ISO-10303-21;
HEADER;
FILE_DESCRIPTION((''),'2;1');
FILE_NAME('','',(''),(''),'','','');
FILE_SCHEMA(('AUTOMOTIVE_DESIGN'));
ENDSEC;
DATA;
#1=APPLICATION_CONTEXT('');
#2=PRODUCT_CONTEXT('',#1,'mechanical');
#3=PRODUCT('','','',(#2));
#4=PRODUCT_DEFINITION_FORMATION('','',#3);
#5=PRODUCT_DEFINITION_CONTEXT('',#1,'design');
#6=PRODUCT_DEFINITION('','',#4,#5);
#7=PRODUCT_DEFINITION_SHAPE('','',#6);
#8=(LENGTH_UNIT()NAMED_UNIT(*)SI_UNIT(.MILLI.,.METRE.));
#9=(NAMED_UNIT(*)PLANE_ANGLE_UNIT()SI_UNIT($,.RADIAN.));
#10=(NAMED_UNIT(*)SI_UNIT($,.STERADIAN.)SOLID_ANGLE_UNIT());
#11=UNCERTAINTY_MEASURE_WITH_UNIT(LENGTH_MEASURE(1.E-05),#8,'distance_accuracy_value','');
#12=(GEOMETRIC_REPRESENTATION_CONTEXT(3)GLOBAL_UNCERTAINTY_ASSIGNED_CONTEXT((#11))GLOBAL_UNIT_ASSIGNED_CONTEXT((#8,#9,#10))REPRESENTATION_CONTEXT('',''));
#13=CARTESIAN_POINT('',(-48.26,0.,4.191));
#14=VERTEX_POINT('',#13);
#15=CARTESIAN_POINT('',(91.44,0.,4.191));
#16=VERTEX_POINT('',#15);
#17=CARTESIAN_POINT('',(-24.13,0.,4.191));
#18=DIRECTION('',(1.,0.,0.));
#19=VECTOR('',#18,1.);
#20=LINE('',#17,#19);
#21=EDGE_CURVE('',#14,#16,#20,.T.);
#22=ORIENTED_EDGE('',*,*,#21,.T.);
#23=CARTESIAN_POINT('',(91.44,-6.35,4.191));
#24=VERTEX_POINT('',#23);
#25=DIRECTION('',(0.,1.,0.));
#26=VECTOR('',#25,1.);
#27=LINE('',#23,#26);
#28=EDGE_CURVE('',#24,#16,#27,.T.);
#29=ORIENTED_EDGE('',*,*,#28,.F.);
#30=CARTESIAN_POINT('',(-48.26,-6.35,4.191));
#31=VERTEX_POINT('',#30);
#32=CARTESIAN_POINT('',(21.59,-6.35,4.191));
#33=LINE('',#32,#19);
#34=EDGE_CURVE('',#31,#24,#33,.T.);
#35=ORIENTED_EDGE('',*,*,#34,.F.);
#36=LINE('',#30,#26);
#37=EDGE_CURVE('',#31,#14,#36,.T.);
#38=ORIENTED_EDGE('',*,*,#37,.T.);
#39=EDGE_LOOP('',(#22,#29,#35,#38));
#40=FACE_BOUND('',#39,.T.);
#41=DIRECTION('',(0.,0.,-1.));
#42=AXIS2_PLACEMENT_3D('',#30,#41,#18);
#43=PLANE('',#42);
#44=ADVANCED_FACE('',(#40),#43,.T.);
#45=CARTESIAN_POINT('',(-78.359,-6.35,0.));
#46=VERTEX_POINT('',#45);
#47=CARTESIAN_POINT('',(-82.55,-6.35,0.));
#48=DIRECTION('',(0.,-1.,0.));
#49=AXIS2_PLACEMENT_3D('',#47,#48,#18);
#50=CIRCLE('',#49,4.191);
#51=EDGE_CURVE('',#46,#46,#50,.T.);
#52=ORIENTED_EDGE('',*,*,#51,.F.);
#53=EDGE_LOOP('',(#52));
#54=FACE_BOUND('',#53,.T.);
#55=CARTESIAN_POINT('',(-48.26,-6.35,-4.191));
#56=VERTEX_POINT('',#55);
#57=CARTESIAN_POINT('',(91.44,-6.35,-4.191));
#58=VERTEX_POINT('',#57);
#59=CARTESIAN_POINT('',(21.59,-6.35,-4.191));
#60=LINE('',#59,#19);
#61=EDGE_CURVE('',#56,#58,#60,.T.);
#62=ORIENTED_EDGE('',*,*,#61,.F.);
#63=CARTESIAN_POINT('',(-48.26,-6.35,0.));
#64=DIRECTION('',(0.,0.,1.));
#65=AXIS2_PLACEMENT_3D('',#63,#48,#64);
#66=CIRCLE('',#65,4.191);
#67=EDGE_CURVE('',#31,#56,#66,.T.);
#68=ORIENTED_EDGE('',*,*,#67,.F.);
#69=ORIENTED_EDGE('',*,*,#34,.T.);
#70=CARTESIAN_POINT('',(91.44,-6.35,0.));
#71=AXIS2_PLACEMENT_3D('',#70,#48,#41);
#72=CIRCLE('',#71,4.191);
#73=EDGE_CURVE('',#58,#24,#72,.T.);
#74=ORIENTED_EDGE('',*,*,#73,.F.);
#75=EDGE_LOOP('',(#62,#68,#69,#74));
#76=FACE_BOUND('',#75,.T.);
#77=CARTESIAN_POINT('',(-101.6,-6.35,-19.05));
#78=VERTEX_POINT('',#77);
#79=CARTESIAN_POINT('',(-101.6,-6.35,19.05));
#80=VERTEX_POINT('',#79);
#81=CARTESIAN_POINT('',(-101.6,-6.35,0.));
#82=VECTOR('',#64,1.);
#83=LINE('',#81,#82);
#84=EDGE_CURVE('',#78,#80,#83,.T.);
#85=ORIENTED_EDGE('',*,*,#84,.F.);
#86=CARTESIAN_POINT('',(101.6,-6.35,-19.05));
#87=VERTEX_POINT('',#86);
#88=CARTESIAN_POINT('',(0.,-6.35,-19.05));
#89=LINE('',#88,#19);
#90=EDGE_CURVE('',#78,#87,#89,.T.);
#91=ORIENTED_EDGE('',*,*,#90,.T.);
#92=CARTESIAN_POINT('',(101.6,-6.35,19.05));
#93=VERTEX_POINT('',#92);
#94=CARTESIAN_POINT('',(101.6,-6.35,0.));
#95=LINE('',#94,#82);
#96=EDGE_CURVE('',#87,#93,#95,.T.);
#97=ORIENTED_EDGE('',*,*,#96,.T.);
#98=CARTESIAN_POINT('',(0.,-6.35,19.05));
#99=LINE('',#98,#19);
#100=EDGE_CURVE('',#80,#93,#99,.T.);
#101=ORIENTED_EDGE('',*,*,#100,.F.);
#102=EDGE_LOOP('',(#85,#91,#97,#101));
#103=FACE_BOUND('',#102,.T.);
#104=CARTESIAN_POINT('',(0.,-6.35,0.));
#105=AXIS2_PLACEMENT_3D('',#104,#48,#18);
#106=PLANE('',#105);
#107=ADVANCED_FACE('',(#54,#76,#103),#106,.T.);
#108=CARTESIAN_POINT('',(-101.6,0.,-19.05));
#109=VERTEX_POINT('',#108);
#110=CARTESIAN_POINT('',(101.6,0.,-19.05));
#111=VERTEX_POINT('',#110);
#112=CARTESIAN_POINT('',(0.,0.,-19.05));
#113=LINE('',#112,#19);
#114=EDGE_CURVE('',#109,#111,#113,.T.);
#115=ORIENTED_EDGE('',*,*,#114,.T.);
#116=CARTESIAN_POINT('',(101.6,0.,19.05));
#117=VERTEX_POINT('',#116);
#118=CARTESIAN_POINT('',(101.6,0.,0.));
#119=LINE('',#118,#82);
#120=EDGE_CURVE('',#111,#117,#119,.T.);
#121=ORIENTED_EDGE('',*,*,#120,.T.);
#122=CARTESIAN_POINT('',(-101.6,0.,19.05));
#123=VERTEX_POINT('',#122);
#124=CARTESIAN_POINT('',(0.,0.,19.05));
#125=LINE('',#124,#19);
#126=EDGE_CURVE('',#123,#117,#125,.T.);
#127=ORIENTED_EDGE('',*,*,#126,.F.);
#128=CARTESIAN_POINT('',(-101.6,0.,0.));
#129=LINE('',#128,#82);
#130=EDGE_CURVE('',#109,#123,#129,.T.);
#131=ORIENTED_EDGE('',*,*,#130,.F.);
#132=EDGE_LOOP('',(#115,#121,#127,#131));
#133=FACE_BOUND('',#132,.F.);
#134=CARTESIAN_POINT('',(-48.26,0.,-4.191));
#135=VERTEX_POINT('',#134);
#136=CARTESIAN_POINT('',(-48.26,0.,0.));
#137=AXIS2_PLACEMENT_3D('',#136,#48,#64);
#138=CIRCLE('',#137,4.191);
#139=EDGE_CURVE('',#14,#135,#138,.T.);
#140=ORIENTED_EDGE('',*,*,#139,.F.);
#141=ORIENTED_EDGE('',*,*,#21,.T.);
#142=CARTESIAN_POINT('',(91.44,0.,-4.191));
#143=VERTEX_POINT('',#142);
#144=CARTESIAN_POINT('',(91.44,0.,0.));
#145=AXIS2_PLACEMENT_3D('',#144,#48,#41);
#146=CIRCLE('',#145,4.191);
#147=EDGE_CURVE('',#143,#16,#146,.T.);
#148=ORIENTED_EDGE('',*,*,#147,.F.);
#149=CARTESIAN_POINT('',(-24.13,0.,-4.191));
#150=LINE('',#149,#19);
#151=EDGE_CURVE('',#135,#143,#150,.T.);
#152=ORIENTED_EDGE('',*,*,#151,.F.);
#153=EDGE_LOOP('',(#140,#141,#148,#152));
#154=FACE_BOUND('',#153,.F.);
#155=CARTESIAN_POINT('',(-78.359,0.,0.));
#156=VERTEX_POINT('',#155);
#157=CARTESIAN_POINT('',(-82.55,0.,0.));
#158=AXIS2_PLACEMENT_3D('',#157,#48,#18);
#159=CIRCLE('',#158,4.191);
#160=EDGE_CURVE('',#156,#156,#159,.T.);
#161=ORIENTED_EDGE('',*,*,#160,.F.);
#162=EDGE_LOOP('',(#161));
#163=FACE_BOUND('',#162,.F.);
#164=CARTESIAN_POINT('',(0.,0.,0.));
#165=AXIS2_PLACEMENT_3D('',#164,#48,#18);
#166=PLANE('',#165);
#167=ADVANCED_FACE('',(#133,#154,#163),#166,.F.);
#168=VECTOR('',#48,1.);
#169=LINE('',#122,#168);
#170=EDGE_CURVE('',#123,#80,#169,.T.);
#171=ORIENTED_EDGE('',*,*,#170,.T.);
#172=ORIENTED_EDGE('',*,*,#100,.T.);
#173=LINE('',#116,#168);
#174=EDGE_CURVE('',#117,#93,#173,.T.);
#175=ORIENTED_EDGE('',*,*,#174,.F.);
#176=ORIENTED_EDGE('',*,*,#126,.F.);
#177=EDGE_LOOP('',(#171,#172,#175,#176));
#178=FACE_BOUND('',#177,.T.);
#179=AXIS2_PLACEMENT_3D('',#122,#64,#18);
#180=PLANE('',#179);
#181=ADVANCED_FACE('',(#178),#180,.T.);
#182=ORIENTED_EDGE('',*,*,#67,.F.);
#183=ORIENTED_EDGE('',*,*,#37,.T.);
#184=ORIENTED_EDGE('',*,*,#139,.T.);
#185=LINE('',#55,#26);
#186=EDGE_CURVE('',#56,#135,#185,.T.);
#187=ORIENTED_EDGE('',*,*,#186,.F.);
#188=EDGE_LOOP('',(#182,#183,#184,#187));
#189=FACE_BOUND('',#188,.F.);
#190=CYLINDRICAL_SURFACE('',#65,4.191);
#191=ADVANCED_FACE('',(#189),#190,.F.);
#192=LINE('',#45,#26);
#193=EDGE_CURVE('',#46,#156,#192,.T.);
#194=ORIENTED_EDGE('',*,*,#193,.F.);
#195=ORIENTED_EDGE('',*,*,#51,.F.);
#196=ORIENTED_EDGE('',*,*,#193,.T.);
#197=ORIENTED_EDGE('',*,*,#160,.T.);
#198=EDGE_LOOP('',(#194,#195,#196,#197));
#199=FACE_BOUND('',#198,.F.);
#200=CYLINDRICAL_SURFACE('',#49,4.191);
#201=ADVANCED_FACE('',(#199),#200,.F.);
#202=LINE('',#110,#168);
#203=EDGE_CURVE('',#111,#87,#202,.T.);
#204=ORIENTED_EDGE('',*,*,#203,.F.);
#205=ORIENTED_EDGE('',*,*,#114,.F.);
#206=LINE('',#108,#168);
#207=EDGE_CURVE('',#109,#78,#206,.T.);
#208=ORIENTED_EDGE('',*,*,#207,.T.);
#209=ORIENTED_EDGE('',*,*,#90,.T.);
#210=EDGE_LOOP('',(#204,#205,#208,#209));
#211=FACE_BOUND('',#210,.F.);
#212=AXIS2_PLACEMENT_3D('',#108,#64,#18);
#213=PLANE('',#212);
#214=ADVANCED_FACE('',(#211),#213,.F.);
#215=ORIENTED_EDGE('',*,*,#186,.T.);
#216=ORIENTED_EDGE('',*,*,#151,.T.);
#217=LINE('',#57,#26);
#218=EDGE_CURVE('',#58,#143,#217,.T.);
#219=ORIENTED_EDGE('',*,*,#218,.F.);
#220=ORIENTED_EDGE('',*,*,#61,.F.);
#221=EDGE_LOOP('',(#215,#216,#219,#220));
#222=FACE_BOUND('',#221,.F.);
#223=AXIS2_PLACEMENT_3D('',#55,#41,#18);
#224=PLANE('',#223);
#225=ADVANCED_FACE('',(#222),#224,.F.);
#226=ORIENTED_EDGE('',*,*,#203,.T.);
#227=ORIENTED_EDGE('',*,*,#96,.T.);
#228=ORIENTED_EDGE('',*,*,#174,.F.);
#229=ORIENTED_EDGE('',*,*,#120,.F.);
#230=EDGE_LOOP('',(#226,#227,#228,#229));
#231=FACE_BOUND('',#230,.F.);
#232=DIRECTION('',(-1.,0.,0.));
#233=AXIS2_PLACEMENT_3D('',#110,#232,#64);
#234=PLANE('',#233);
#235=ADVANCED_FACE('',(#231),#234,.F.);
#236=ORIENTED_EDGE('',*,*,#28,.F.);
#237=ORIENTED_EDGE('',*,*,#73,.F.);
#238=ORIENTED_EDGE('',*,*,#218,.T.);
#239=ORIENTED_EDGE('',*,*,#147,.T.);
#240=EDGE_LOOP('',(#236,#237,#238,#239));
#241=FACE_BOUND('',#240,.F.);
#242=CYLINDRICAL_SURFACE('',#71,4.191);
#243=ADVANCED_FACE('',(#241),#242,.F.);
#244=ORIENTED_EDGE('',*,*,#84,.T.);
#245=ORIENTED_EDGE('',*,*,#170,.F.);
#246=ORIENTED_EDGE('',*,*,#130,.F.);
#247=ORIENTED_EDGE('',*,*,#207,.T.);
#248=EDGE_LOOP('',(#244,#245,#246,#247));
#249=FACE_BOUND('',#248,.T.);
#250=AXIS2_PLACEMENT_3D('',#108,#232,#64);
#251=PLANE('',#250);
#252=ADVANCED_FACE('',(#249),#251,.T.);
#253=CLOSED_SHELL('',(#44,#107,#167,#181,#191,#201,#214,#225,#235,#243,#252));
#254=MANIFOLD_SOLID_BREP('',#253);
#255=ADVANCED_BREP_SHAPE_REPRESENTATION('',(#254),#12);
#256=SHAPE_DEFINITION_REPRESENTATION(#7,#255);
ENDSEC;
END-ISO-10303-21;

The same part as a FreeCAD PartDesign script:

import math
import FreeCAD as App
import Part
import Sketcher
Q = App.Units.Quantity


def add_polygon(sketch, points):
    """Adds a closed chain of lines whose ends are joined by coincident constraints."""
    first, n = sketch.GeometryCount, len(points)
    for a, b in zip(points, points[1:] + points[:1]):
        sketch.addGeometry(Part.LineSegment(App.Vector(*a, 0), App.Vector(*b, 0)), False)
    for i in range(n):
        sketch.addConstraint(Sketcher.Constraint("Coincident", first + i, 2, first + (i + 1) % n, 1))

doc = App.newDocument("Part")
body = doc.addObject("PartDesign::Body", "Body")

# Sketch on XZ plane
sketch1 = body.newObject("Sketcher::SketchObject", "Sketch")
sketch1.AttachmentSupport = (doc.getObject("XZ_Plane"), [""])
sketch1.MapMode = "FlatFace"
add_polygon(sketch1, [(-102, 19), (-102, -19), (102, -19), (102, 19)])  # lines 0-3
sketch1.addConstraint([
    Sketcher.Constraint("Vertical", 0),
    Sketcher.Constraint("Horizontal", 1),
    Sketcher.Constraint("Vertical", 2),
    Sketcher.Constraint("Horizontal", 3),
    Sketcher.Constraint("Symmetric", 0, 2, 2, 2, -1, 1),
    Sketcher.Constraint("DistanceX", 1, 1, 1, 2, Q("8 in")),
    Sketcher.Constraint("DistanceY", 0, 2, 0, 1, Q("1.5 in")),
])
pad1 = body.newObject("PartDesign::Pad", "Pad")
pad1.Profile = sketch1
pad1.Length = Q("0.25 in")

# Sketch on XZ plane
sketch2 = body.newObject("Sketcher::SketchObject", "Sketch001")
sketch2.AttachmentSupport = (doc.getObject("XZ_Plane"), [""])
sketch2.MapMode = "FlatFace"
sketch2.AttachmentOffset = App.Placement(App.Vector(0, 0, 0.25 * 25.4), App.Rotation())
sketch2.addGeometry(Part.Circle(App.Vector(-82.5, 0, 0), App.Vector(0, 0, 1), 4.2), False)
sketch2.addConstraint([
    Sketcher.Constraint("PointOnObject", 0, 3, -1),
    Sketcher.Constraint("Diameter", 0, Q("0.33 in")),
    Sketcher.Constraint("DistanceX", 0, 3, -1, 1, Q("3.25 in")),
])
pocket1 = body.newObject("PartDesign::Pocket", "Pocket")
pocket1.Profile = sketch2
pocket1.Type = "ThroughAll"

# Sketch on XZ plane
sketch3 = body.newObject("Sketcher::SketchObject", "Sketch002")
sketch3.AttachmentSupport = (doc.getObject("XZ_Plane"), [""])
sketch3.MapMode = "FlatFace"
sketch3.AttachmentOffset = App.Placement(App.Vector(0, 0, 0.25 * 25.4), App.Rotation())
sketch3.addGeometry([
    Part.LineSegment(App.Vector(-48.3, -4.2, 0), App.Vector(91.4, -4.2, 0)),
    Part.ArcOfCircle(Part.Circle(App.Vector(91.4, 0, 0), App.Vector(0, 0, 1), 4.2), math.radians(-90), math.radians(90)),
    Part.LineSegment(App.Vector(91.4, 4.2, 0), App.Vector(-48.3, 4.2, 0)),
    Part.ArcOfCircle(Part.Circle(App.Vector(-48.3, 0, 0), App.Vector(0, 0, 1), 4.2), math.radians(90), math.radians(270)),
], False)
sketch3.addConstraint([
    Sketcher.Constraint("Tangent", 0, 2, 1, 1),
    Sketcher.Constraint("Tangent", 1, 2, 2, 1),
    Sketcher.Constraint("Tangent", 2, 2, 3, 1),
    Sketcher.Constraint("Tangent", 3, 2, 0, 1),
    Sketcher.Constraint("Horizontal", 0),
    Sketcher.Constraint("Horizontal", 2),
    Sketcher.Constraint("PointOnObject", 1, 3, -1),
    Sketcher.Constraint("DistanceX", 0, 1, 0, 2, Q("5.5 in")),
    Sketcher.Constraint("Radius", 1, Q("0.165 in")),
    Sketcher.Constraint("DistanceX", -1, 1, 1, 3, Q("3.6 in")),
])
pocket2 = body.newObject("PartDesign::Pocket", "Pocket001")
pocket2.Profile = sketch3
pocket2.Length = Q("1 in")

doc.recompute()
